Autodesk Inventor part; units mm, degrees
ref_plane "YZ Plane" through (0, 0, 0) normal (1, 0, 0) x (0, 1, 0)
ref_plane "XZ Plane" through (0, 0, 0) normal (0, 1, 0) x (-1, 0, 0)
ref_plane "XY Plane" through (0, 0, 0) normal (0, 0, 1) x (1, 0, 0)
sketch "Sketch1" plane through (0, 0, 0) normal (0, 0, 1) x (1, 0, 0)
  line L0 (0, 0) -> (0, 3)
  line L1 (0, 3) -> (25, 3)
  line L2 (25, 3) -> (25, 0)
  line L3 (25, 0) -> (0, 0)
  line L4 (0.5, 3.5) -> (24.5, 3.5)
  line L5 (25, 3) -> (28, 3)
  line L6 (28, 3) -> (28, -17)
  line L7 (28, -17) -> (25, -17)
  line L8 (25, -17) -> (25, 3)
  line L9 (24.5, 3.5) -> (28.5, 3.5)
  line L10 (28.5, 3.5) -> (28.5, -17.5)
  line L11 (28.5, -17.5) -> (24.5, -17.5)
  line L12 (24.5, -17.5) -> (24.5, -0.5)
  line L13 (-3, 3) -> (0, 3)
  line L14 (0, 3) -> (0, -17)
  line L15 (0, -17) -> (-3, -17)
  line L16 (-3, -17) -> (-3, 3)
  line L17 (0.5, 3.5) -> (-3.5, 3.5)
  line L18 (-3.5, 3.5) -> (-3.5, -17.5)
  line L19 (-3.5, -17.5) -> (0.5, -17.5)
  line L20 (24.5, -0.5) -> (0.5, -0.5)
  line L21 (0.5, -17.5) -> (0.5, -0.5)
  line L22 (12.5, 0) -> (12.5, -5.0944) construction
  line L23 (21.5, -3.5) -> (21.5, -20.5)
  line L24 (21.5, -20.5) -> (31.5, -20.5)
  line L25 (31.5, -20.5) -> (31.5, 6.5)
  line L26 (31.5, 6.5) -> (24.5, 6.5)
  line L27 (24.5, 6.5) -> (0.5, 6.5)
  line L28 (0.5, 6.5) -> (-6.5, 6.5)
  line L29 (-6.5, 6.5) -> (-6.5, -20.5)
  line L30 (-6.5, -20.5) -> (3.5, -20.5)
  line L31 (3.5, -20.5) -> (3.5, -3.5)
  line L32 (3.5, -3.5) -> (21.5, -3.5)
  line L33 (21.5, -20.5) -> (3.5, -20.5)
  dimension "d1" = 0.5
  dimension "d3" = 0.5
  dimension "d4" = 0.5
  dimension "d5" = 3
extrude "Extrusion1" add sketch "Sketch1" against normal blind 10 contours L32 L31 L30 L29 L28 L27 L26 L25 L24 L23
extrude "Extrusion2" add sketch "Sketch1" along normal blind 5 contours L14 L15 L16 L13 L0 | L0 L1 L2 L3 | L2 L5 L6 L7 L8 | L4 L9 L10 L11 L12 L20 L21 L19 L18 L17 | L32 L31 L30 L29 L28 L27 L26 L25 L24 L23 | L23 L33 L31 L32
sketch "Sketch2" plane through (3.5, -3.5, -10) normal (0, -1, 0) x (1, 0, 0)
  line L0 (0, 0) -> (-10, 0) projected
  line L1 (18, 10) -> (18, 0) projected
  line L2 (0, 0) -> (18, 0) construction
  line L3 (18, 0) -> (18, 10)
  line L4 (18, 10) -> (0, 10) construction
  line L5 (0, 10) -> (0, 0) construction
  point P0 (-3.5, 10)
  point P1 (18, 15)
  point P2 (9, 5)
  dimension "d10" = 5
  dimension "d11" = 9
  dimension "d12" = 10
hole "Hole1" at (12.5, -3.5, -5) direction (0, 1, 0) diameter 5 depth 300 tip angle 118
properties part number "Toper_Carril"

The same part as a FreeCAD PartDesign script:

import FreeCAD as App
import Part
import Sketcher

V = App.Vector


def add_polygon(sketch, points):
    """Adds a closed chain of lines whose ends are joined by coincident constraints."""
    first, n = sketch.GeometryCount, len(points)
    for a, b in zip(points, points[1:] + points[:1]):
        sketch.addGeometry(Part.LineSegment(App.Vector(*a, 0), App.Vector(*b, 0)), False)
    for i in range(n):
        sketch.addConstraint(Sketcher.Constraint("Coincident", first + i, 2, first + (i + 1) % n, 1))

doc = App.newDocument("Part")
body = doc.addObject("PartDesign::Body", "Body")

# Sketch on XY plane
sketch1 = body.newObject("Sketcher::SketchObject", "Sketch")
sketch1.AttachmentSupport = (doc.getObject("XY_Plane"), [""])
sketch1.MapMode = "FlatFace"
add_polygon(sketch1, [(3.5, -3.5), (21.5, -3.5), (21.5, -20.5), (31.5, -20.5), (31.5, 6.5), (-6.5, 6.5), (-6.5, -20.5), (3.5, -20.5)])  # lines 0-7
add_polygon(sketch1, [(-3.5, 3.5), (28.5, 3.5), (28.5, -17.5), (24.5, -17.5), (24.5, -0.5), (0.5, -0.5), (0.5, -17.5), (-3.5, -17.5)])  # lines 8-15
sketch1.addConstraint(Sketcher.Constraint("Horizontal", 0))
sketch1.addConstraint(Sketcher.Constraint("Vertical", 1))
sketch1.addConstraint(Sketcher.Constraint("Horizontal", 2))
sketch1.addConstraint(Sketcher.Constraint("Vertical", 3))
sketch1.addConstraint(Sketcher.Constraint("Horizontal", 4))
sketch1.addConstraint(Sketcher.Constraint("Vertical", 5))
sketch1.addConstraint(Sketcher.Constraint("Horizontal", 6))
sketch1.addConstraint(Sketcher.Constraint("Vertical", 7))
sketch1.addConstraint(Sketcher.Constraint("Horizontal", 8))
sketch1.addConstraint(Sketcher.Constraint("Vertical", 9))
sketch1.addConstraint(Sketcher.Constraint("Horizontal", 10))
sketch1.addConstraint(Sketcher.Constraint("Vertical", 11))
sketch1.addConstraint(Sketcher.Constraint("Horizontal", 12))
sketch1.addConstraint(Sketcher.Constraint("Vertical", 13))
sketch1.addConstraint(Sketcher.Constraint("Horizontal", 14))
sketch1.addConstraint(Sketcher.Constraint("Vertical", 15))
sketch1.addConstraint(Sketcher.Constraint("Symmetric", 7, 2, 15, 2, -1, 1))
sketch1.addConstraint(Sketcher.Constraint("Horizontal", 2, 2, 5, 2))
sketch1.addConstraint(Sketcher.Constraint("Horizontal", 10, 2, 13, 2))
sketch1.addConstraint(Sketcher.Constraint("Equal", 2, 6))
sketch1.addConstraint(Sketcher.Constraint("Equal", 10, 14))
sketch1.addConstraint(Sketcher.Constraint("Equal", 7, 11))
sketch1.addConstraint(Sketcher.Constraint("DistanceX", 8, 2, 3, 2, 3.0))
sketch1.addConstraint(Sketcher.Constraint("DistanceY", 8, 2, 3, 2, 3.0))
sketch1.addConstraint(Sketcher.Constraint("DistanceY", 2, 2, 9, 2, 3.0))
sketch1.addConstraint(Sketcher.Constraint("DistanceX", 1, 2, 10, 2, 3.0))
sketch1.addConstraint(Sketcher.Constraint("DistanceX", 12, 2, 7, 2, 3.0))
sketch1.addConstraint(Sketcher.Constraint("DistanceY", 11, 2, -1, 1, 0.5))
sketch1.addConstraint(Sketcher.Constraint("DistanceX", -1, 1, 12, 2, 0.5))
sketch1.addConstraint(Sketcher.Constraint("DistanceX", 0, 1, 0, 2, 18.0))
sketch1.addConstraint(Sketcher.Constraint("DistanceY", 1, 2, 1, 1, 17.0))
pad1 = body.newObject("PartDesign::Pad", "Pad")
pad1.Profile = sketch1
pad1.Length = 10
pad1.Reversed = True

# Sketch on XY plane
sketch2 = body.newObject("Sketcher::SketchObject", "Sketch001")
sketch2.AttachmentSupport = (doc.getObject("XY_Plane"), [""])
sketch2.MapMode = "FlatFace"
add_polygon(sketch2, [(-6.5, -20.5), (31.5, -20.5), (31.5, 6.5), (-6.5, 6.5)])  # lines 0-3
sketch2.addConstraint(Sketcher.Constraint("Horizontal", 0))
sketch2.addConstraint(Sketcher.Constraint("Vertical", 1))
sketch2.addConstraint(Sketcher.Constraint("Horizontal", 2))
sketch2.addConstraint(Sketcher.Constraint("Vertical", 3))
sketch2.addConstraint(Sketcher.Constraint("DistanceX", 0, 1, 0, 2, 38.0))
sketch2.addConstraint(Sketcher.Constraint("DistanceY", 1, 1, 1, 2, 27.0))
sketch2.addConstraint(Sketcher.Constraint("DistanceX", -1, 1, 0, 2, 31.5))
sketch2.addConstraint(Sketcher.Constraint("DistanceY", 0, 2, -1, 1, 20.5))
pad2 = body.newObject("PartDesign::Pad", "Pad001")
pad2.Profile = sketch2
pad2.Length = 5

# Sketch on XZ plane
sketch3 = body.newObject("Sketcher::SketchObject", "Sketch002")
sketch3.AttachmentSupport = (doc.getObject("XZ_Plane"), [""])
sketch3.MapMode = "FlatFace"
sketch3.AttachmentOffset = App.Placement(V(0, 0, 3.5), App.Rotation())
sketch3.addGeometry(Part.Circle(V(12.5, -5, 0), V(0, 0, 1), 2.5), False)
sketch3.addConstraint(Sketcher.Constraint("Diameter", 0, 5.0))
sketch3.addConstraint(Sketcher.Constraint("DistanceY", 0, 3, -1, 1, 5.0))
sketch3.addConstraint(Sketcher.Constraint("DistanceX", -1, 1, 0, 3, 12.5))
doc.recompute()
hole = body.newObject("PartDesign::Hole", "Hole")
hole.Profile = sketch3
hole.ThreadType = "None"
hole.Diameter = 5
hole.DepthType = "Dimension"
hole.Depth = 300
hole.DrillPoint = "Angled"
hole.DrillPointAngle = 118

doc.recompute()
